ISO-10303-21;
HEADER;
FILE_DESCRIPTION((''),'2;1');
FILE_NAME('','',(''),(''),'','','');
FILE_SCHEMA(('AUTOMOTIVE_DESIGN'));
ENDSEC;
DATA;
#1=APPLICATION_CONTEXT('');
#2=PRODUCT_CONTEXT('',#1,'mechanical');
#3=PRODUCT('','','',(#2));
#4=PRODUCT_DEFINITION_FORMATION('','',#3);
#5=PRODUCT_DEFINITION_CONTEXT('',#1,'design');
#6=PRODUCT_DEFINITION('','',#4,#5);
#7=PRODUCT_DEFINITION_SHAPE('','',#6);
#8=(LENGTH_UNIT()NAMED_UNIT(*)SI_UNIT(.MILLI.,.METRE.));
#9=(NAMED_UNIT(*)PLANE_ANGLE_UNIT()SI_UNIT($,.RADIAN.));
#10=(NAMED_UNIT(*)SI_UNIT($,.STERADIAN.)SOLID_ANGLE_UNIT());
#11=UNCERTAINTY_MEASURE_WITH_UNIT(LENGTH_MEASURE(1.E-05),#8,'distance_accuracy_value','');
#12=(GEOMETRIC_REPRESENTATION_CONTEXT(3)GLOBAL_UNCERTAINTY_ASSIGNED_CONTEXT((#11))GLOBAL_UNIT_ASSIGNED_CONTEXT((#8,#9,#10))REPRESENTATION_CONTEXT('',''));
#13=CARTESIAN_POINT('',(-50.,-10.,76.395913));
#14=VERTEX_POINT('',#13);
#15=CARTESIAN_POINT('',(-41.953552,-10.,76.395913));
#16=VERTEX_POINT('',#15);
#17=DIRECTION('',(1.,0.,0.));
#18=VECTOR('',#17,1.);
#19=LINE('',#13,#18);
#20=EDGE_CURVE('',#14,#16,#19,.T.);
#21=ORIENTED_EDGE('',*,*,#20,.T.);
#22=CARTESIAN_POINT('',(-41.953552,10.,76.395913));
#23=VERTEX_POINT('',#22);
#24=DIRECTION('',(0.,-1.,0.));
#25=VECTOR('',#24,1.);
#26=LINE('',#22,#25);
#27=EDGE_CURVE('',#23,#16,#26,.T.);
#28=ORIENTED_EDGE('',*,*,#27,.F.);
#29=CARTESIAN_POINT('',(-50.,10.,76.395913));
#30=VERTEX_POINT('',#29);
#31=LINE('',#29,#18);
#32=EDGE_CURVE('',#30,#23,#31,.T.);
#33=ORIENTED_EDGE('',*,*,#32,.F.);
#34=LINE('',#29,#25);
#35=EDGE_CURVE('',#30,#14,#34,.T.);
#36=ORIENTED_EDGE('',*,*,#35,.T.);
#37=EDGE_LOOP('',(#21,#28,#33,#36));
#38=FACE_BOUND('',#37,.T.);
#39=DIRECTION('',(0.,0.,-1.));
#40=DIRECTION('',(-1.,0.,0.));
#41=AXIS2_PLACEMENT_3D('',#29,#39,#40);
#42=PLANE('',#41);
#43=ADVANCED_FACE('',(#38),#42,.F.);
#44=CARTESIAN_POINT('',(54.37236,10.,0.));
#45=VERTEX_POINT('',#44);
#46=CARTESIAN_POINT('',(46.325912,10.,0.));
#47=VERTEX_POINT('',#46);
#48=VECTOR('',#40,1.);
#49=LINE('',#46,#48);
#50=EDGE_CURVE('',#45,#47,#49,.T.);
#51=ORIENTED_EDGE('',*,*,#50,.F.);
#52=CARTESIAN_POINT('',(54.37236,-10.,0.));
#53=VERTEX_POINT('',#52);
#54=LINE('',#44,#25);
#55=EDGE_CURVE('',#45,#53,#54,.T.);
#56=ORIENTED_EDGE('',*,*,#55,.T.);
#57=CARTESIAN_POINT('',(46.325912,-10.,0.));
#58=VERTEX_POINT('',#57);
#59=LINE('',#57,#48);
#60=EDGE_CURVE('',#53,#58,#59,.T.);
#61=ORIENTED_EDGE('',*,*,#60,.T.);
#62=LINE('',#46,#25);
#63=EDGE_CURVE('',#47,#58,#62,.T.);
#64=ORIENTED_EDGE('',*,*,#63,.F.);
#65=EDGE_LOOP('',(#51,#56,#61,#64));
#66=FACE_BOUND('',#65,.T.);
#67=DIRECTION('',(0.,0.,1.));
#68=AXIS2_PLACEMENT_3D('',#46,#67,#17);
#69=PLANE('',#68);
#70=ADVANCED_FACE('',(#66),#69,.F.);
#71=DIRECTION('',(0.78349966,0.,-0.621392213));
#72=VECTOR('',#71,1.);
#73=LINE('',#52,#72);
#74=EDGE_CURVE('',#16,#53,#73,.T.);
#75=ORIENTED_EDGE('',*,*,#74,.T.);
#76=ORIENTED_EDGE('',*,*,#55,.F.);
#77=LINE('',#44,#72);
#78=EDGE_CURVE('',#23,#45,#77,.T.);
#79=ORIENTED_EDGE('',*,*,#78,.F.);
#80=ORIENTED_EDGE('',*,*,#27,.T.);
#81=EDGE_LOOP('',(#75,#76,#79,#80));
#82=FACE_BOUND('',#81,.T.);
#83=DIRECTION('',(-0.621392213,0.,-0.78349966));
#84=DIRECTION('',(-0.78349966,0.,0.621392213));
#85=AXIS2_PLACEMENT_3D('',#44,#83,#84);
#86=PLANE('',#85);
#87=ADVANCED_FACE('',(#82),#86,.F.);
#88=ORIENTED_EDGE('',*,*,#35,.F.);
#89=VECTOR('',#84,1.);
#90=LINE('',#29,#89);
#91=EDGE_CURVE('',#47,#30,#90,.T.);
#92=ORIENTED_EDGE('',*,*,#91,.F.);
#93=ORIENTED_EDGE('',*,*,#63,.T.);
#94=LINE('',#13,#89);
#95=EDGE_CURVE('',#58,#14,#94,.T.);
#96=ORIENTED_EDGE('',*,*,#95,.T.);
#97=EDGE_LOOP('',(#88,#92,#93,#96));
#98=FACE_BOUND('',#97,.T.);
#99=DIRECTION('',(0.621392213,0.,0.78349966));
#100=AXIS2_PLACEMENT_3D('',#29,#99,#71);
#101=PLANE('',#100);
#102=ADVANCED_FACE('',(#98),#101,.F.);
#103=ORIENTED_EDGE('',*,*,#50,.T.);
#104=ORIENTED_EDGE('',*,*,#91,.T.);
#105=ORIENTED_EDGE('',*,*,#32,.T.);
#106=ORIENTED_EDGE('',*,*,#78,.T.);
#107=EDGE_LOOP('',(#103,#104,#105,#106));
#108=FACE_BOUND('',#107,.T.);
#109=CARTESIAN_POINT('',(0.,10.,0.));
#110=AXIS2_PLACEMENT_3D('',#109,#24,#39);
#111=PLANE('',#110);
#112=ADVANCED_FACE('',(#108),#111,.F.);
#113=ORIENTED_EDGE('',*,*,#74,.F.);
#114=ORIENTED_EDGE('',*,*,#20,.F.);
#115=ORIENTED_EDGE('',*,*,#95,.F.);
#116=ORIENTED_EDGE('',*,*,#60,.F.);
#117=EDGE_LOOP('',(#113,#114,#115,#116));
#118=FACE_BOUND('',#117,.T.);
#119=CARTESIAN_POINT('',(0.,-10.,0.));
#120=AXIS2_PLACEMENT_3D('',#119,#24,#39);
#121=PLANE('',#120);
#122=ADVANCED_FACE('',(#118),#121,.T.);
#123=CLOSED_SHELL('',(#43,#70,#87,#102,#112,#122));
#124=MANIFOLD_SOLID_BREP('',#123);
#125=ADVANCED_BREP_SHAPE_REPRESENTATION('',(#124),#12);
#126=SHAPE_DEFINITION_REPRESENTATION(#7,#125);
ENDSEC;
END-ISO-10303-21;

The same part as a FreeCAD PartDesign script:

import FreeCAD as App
import Part
import Sketcher
from FreeCAD import Vector
Q = App.Units.Quantity

doc = App.newDocument("Part")
body = doc.addObject("PartDesign::Body", "Body")

sketch1 = doc.addObject("Sketcher::SketchObject", "Sketch")
body.addObject(sketch1)
sketch1.AttachmentSupport = (doc.XZ_Plane, [""])
sketch1.MapMode = "FlatFace"
sketch1.addGeometry([
    Part.LineSegment(Vector(46, 0, 0), Vector(-50, 76, 0)),
    Part.LineSegment(Vector(-50, 76, 0), Vector(-42, 76, 0)),
    Part.LineSegment(Vector(-42, 76, 0), Vector(54, 0, 0)),
    Part.LineSegment(Vector(54, 0, 0), Vector(46, 0, 0)),
], False)
sketch1.addConstraint([
    Sketcher.Constraint("Coincident", 0, 2, 1, 1),
    Sketcher.Constraint("Coincident", 1, 2, 2, 1),
    Sketcher.Constraint("Coincident", 2, 2, 3, 1),
    Sketcher.Constraint("Coincident", 3, 2, 0, 1),
    Sketcher.Constraint("Horizontal", 1),
    Sketcher.Constraint("Horizontal", 3),
    Sketcher.Constraint("PointOnObject", 2, 2, -1),
    Sketcher.Constraint("Parallel", 0, 2),
    Sketcher.Constraint("DistanceX", 0, 2, -1, 1, Q("50 mm")),
    Sketcher.Constraint("DistanceX", 1, 1, 1, 2, Q("8.046448 mm")),
    Sketcher.Constraint("DistanceX", -1, 1, 2, 2, Q("54.37236 mm")),
    Sketcher.Constraint("Distance", 0, Q("122.943145 mm")),
])
pad1 = doc.addObject("PartDesign::Pad", "Pad")
body.addObject(pad1)
pad1.Profile = sketch1
pad1.Length = 20
pad1.Midplane = True

doc.recompute()
